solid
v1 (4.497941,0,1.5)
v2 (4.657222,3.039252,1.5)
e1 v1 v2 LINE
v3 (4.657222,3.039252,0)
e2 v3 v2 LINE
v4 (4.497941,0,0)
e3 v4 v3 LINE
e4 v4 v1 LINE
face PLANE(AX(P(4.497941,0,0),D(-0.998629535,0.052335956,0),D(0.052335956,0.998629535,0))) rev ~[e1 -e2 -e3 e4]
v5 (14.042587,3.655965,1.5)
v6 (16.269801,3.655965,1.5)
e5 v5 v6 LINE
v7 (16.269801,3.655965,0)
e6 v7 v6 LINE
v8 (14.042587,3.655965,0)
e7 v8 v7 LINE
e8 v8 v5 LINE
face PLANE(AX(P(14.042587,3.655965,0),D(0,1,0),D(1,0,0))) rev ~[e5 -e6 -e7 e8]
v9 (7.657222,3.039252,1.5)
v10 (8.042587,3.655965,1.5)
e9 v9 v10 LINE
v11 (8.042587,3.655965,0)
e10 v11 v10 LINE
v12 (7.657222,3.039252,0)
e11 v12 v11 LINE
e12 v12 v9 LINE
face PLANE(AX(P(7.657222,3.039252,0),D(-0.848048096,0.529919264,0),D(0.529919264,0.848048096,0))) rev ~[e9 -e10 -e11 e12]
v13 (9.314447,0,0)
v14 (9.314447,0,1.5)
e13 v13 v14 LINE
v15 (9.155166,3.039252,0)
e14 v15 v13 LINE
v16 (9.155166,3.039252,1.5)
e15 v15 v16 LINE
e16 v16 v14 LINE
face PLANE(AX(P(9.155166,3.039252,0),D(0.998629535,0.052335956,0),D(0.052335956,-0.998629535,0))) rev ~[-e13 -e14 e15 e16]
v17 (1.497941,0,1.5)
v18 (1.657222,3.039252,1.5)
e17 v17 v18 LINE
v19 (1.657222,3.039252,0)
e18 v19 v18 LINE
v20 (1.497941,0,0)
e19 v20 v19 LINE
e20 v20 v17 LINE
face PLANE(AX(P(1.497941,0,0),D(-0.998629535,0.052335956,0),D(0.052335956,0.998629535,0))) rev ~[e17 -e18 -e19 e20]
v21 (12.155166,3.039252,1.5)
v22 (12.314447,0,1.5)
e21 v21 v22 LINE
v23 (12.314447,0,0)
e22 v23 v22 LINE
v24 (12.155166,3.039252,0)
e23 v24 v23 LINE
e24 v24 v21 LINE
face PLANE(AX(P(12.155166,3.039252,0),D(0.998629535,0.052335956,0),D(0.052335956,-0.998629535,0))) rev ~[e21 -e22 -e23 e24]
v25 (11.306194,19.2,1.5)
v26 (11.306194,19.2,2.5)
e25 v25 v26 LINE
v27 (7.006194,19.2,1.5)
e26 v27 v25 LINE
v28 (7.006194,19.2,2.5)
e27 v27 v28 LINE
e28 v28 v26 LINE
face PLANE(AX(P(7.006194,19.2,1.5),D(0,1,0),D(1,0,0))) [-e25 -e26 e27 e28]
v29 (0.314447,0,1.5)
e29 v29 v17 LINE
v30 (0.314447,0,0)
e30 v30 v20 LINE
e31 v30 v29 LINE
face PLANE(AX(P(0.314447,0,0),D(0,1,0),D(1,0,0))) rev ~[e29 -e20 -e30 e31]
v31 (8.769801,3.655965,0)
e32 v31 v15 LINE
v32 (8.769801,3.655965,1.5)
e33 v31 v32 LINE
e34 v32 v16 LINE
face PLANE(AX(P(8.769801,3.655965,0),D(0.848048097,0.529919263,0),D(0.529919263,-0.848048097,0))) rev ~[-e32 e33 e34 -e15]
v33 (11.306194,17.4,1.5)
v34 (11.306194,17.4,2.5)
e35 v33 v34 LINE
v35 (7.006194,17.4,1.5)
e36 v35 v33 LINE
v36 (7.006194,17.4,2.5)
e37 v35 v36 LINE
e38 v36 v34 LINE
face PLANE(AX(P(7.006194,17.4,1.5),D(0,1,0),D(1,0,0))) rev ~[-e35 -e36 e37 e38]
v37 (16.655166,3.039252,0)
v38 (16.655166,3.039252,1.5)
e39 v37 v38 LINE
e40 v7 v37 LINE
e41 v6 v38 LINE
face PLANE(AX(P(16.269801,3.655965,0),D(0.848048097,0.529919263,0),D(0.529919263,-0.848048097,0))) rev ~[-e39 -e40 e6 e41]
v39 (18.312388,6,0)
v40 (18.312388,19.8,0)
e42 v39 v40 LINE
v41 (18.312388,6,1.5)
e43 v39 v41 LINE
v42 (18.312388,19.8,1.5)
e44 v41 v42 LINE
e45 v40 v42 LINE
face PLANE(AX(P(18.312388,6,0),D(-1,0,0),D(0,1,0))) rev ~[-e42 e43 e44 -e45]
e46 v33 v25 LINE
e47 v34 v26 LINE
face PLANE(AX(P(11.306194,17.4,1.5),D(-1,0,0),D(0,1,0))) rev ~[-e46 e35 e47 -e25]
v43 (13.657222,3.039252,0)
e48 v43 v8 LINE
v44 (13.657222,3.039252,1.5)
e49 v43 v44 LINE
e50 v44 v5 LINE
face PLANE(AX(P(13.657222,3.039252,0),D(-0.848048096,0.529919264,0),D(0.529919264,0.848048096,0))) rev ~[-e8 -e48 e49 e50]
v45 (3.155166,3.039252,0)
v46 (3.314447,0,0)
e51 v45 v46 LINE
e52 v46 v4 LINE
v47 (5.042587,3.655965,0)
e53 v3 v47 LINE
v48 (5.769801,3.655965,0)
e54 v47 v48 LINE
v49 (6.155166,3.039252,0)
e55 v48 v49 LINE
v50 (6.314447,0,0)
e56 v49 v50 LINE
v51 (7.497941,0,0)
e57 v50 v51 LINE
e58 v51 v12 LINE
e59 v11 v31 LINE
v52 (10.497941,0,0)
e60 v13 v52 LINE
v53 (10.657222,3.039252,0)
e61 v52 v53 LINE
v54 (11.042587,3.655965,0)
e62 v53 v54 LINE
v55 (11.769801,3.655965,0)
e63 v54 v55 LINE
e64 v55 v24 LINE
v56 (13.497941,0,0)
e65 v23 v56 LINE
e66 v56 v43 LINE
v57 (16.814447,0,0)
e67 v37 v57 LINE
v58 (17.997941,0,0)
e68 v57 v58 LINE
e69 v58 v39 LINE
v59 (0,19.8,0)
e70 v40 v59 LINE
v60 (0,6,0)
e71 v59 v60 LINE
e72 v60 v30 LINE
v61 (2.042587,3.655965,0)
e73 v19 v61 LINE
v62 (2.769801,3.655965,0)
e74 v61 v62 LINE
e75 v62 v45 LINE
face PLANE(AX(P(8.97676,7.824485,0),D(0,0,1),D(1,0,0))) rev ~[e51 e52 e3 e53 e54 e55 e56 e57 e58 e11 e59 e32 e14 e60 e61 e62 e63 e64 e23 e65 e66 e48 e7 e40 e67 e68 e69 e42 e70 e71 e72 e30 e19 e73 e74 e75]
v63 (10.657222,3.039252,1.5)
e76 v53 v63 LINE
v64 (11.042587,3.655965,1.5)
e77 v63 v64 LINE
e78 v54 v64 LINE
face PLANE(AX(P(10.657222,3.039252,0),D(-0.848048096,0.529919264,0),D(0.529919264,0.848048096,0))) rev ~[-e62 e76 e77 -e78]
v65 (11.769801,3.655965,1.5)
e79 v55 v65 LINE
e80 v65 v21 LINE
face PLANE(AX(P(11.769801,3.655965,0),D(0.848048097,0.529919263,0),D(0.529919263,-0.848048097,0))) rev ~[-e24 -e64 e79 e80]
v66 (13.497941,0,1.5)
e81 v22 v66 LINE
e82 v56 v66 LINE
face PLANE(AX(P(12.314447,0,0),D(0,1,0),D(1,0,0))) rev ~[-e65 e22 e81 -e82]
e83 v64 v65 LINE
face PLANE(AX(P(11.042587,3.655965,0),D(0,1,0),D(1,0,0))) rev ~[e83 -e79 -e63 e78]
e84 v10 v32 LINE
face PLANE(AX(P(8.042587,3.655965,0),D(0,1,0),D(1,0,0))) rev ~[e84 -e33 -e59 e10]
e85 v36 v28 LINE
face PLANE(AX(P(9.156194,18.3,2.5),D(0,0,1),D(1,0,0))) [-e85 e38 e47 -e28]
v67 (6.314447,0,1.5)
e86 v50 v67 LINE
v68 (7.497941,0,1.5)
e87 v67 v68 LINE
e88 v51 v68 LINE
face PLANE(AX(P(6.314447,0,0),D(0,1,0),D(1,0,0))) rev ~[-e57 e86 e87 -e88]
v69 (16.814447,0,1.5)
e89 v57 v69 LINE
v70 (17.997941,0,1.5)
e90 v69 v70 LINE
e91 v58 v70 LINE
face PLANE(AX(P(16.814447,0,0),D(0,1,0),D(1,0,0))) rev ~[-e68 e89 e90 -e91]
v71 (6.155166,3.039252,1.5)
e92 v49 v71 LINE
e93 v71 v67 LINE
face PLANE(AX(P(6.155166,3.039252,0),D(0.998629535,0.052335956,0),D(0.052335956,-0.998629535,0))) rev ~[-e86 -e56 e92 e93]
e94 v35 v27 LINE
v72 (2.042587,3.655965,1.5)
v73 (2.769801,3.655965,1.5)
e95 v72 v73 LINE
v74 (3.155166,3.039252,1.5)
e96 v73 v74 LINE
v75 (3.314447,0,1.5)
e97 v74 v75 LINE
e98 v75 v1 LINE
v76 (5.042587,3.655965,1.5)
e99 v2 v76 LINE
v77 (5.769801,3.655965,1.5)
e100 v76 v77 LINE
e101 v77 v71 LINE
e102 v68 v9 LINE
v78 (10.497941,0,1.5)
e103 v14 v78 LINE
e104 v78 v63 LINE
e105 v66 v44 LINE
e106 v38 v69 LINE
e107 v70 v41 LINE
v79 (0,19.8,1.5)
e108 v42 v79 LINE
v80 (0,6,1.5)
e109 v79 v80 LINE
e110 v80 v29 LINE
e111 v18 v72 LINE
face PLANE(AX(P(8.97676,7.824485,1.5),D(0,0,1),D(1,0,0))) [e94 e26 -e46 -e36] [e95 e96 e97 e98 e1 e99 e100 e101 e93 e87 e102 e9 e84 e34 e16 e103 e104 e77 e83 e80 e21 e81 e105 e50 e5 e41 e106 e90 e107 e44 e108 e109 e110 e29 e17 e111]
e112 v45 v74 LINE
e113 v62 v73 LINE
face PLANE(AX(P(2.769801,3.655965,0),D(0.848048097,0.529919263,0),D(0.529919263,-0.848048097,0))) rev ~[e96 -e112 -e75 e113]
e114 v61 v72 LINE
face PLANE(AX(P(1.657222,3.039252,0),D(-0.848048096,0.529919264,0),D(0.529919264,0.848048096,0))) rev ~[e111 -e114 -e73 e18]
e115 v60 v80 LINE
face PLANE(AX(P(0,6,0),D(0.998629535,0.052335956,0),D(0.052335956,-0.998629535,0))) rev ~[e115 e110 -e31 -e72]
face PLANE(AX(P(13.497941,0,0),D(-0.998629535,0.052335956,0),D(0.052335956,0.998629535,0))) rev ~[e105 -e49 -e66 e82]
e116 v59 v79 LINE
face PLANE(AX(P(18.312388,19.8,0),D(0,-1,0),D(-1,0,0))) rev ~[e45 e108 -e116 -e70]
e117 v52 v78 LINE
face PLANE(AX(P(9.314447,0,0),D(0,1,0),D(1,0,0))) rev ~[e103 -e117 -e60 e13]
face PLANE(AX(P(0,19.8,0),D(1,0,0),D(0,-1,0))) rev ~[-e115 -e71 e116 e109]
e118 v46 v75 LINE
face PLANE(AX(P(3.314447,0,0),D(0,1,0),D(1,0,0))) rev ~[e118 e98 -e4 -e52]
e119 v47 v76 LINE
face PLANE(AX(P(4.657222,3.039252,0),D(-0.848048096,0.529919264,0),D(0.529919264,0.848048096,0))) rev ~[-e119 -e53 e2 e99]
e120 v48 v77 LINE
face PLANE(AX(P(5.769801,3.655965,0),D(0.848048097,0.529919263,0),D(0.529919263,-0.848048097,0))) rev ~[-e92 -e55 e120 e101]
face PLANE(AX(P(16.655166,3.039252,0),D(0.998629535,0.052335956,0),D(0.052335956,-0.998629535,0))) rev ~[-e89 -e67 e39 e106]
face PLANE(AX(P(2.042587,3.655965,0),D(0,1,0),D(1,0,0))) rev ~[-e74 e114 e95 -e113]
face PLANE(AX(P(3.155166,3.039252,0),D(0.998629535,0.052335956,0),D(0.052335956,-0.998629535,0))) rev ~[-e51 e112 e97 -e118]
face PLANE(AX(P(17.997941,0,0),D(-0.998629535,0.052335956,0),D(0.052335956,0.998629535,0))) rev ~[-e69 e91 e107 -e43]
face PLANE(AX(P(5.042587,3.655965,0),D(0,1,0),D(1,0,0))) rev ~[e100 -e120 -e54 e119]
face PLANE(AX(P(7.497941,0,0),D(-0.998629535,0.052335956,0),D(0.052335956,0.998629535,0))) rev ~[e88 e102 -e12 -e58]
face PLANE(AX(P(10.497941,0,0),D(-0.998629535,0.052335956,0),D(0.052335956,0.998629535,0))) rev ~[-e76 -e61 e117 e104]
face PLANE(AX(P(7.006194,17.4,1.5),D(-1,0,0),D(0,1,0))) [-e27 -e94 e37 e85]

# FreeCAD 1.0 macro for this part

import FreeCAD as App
import Part
import Sketcher
from FreeCAD import Vector
Q = App.Units.Quantity

doc = App.newDocument("Part")
body = doc.addObject("PartDesign::Body", "Body")

# Sketch on XY plane
sketch1 = body.newObject("Sketcher::SketchObject", "Sketch")
sketch1.AttachmentSupport = (doc.getObject("XY_Plane"), [""])
sketch1.MapMode = "FlatFace"
sketch1.addGeometry([
    Part.LineSegment(Vector(0, 6, 0), Vector(0.3, 0, 0)),  # 0
    Part.LineSegment(Vector(0.3, 0, 0), Vector(1.5, 0, 0)),  # 1
    Part.LineSegment(Vector(1.5, 0, 0), Vector(1.7, 3, 0)),  # 2
    Part.LineSegment(Vector(1.7, 3, 0), Vector(2, 3.7, 0)),  # 3
    Part.LineSegment(Vector(2, 3.7, 0), Vector(2.8, 3.7, 0)),  # 4
    Part.LineSegment(Vector(2.8, 3.7, 0), Vector(3.2, 3, 0)),  # 5
    Part.LineSegment(Vector(3.2, 3, 0), Vector(3.3, 0, 0)),  # 6
    Part.LineSegment(Vector(3.3, 0, 0), Vector(4.5, 0, 0)),  # 7
    Part.LineSegment(Vector(4.5, 0, 0), Vector(4.7, 3, 0)),  # 8
    Part.LineSegment(Vector(4.7, 3, 0), Vector(5, 3.7, 0)),  # 9
    Part.LineSegment(Vector(5, 3.7, 0), Vector(5.8, 3.7, 0)),  # 10
    Part.LineSegment(Vector(5.8, 3.7, 0), Vector(6.2, 3, 0)),  # 11
    Part.LineSegment(Vector(6.2, 3, 0), Vector(6.3, 0, 0)),  # 12
    Part.LineSegment(Vector(6.3, 0, 0), Vector(7.5, 0, 0)),  # 13
    Part.LineSegment(Vector(7.5, 0, 0), Vector(7.7, 3, 0)),  # 14
    Part.LineSegment(Vector(7.7, 3, 0), Vector(8, 3.7, 0)),  # 15
    Part.LineSegment(Vector(8, 3.7, 0), Vector(8.8, 3.7, 0)),  # 16
    Part.LineSegment(Vector(8.8, 3.7, 0), Vector(9.2, 3, 0)),  # 17
    Part.LineSegment(Vector(9.2, 3, 0), Vector(9.3, 0, 0)),  # 18
    Part.LineSegment(Vector(9.3, 0, 0), Vector(10.5, 0, 0)),  # 19
    Part.LineSegment(Vector(10.5, 0, 0), Vector(10.7, 3, 0)),  # 20
    Part.LineSegment(Vector(10.7, 3, 0), Vector(11, 3.7, 0)),  # 21
    Part.LineSegment(Vector(11, 3.7, 0), Vector(11.8, 3.7, 0)),  # 22
    Part.LineSegment(Vector(11.8, 3.7, 0), Vector(12.2, 3, 0)),  # 23
    Part.LineSegment(Vector(12.2, 3, 0), Vector(12.3, 0, 0)),  # 24
    Part.LineSegment(Vector(12.3, 0, 0), Vector(13.5, 0, 0)),  # 25
    Part.LineSegment(Vector(13.5, 0, 0), Vector(13.7, 3, 0)),  # 26
    Part.LineSegment(Vector(13.7, 3, 0), Vector(14, 3.7, 0)),  # 27
    Part.LineSegment(Vector(14, 3.7, 0), Vector(16.3, 3.7, 0)),  # 28
    Part.LineSegment(Vector(16.3, 3.7, 0), Vector(16.7, 3, 0)),  # 29
    Part.LineSegment(Vector(16.7, 3, 0), Vector(16.8, 0, 0)),  # 30
    Part.LineSegment(Vector(16.8, 0, 0), Vector(18, 0, 0)),  # 31
    Part.LineSegment(Vector(18, 0, 0), Vector(18.3, 6, 0)),  # 32
    Part.LineSegment(Vector(18.3, 6, 0), Vector(18.3, 19.8, 0)),  # 33
    Part.LineSegment(Vector(18.3, 19.8, 0), Vector(0, 19.8, 0)),  # 34
    Part.LineSegment(Vector(0, 19.8, 0), Vector(0, 6, 0)),  # 35
], False)
sketch1.addConstraint([
    Sketcher.Constraint("Coincident", 0, 2, 1, 1),
    Sketcher.Constraint("Coincident", 1, 2, 2, 1),
    Sketcher.Constraint("Coincident", 2, 2, 3, 1),
    Sketcher.Constraint("Coincident", 3, 2, 4, 1),
    Sketcher.Constraint("Coincident", 4, 2, 5, 1),
    Sketcher.Constraint("Coincident", 5, 2, 6, 1),
    Sketcher.Constraint("Coincident", 6, 2, 7, 1),
    Sketcher.Constraint("Coincident", 7, 2, 8, 1),
    Sketcher.Constraint("Coincident", 8, 2, 9, 1),
    Sketcher.Constraint("Coincident", 9, 2, 10, 1),
    Sketcher.Constraint("Coincident", 10, 2, 11, 1),
    Sketcher.Constraint("Coincident", 11, 2, 12, 1),
    Sketcher.Constraint("Coincident", 12, 2, 13, 1),
    Sketcher.Constraint("Coincident", 13, 2, 14, 1),
    Sketcher.Constraint("Coincident", 14, 2, 15, 1),
    Sketcher.Constraint("Coincident", 15, 2, 16, 1),
    Sketcher.Constraint("Coincident", 16, 2, 17, 1),
    Sketcher.Constraint("Coincident", 17, 2, 18, 1),
    Sketcher.Constraint("Coincident", 18, 2, 19, 1),
    Sketcher.Constraint("Coincident", 19, 2, 20, 1),
    Sketcher.Constraint("Coincident", 20, 2, 21, 1),
    Sketcher.Constraint("Coincident", 21, 2, 22, 1),
    Sketcher.Constraint("Coincident", 22, 2, 23, 1),
    Sketcher.Constraint("Coincident", 23, 2, 24, 1),
    Sketcher.Constraint("Coincident", 24, 2, 25, 1),
    Sketcher.Constraint("Coincident", 25, 2, 26, 1),
    Sketcher.Constraint("Coincident", 26, 2, 27, 1),
    Sketcher.Constraint("Coincident", 27, 2, 28, 1),
    Sketcher.Constraint("Coincident", 28, 2, 29, 1),
    Sketcher.Constraint("Coincident", 29, 2, 30, 1),
    Sketcher.Constraint("Coincident", 30, 2, 31, 1),
    Sketcher.Constraint("Coincident", 31, 2, 32, 1),
    Sketcher.Constraint("Coincident", 32, 2, 33, 1),
    Sketcher.Constraint("Coincident", 33, 2, 34, 1),
    Sketcher.Constraint("Coincident", 34, 2, 35, 1),
    Sketcher.Constraint("Coincident", 35, 2, 0, 1),
    Sketcher.Constraint("Horizontal", 1),
    Sketcher.Constraint("Horizontal", 4),
    Sketcher.Constraint("Horizontal", 7),
    Sketcher.Constraint("Horizontal", 10),
    Sketcher.Constraint("Horizontal", 13),
    Sketcher.Constraint("Horizontal", 16),
    Sketcher.Constraint("Horizontal", 19),
    Sketcher.Constraint("Horizontal", 22),
    Sketcher.Constraint("Horizontal", 25),
    Sketcher.Constraint("Horizontal", 28),
    Sketcher.Constraint("Horizontal", 31),
    Sketcher.Constraint("Vertical", 33),
    Sketcher.Constraint("Horizontal", 34),
    Sketcher.Constraint("Vertical", 35),
    Sketcher.Constraint("PointOnObject", 0, 2, -1),
    Sketcher.Constraint("PointOnObject", 6, 2, -1),
    Sketcher.Constraint("PointOnObject", 12, 2, -1),
    Sketcher.Constraint("PointOnObject", 18, 2, -1),
    Sketcher.Constraint("PointOnObject", 24, 2, -1),
    Sketcher.Constraint("PointOnObject", 30, 2, -1),
    Sketcher.Constraint("PointOnObject", 34, 2, -2),
    Sketcher.Constraint("Parallel", 0, 6),
    Sketcher.Constraint("Parallel", 2, 8),
    Sketcher.Constraint("Parallel", 3, 9),
    Sketcher.Constraint("Parallel", 5, 11),
    Sketcher.Constraint("Parallel", 6, 12),
    Sketcher.Constraint("Parallel", 8, 14),
    Sketcher.Constraint("Parallel", 9, 15),
    Sketcher.Constraint("Parallel", 11, 17),
    Sketcher.Constraint("Parallel", 12, 18),
    Sketcher.Constraint("Parallel", 14, 20),
    Sketcher.Constraint("Parallel", 15, 21),
    Sketcher.Constraint("Parallel", 17, 23),
    Sketcher.Constraint("Parallel", 18, 24),
    Sketcher.Constraint("Parallel", 20, 26),
    Sketcher.Constraint("Parallel", 21, 27),
    Sketcher.Constraint("Parallel", 23, 29),
    Sketcher.Constraint("Parallel", 24, 30),
    Sketcher.Constraint("Parallel", 26, 32),
    Sketcher.Constraint("Horizontal", 2, 2, 5, 2),
    Sketcher.Constraint("Horizontal", 5, 2, 8, 2),
    Sketcher.Constraint("Horizontal", 4, 2, 9, 2),
    Sketcher.Constraint("Horizontal", 8, 2, 11, 2),
    Sketcher.Constraint("Horizontal", 11, 2, 14, 2),
    Sketcher.Constraint("Horizontal", 10, 2, 15, 2),
    Sketcher.Constraint("Horizontal", 14, 2, 17, 2),
    Sketcher.Constraint("Horizontal", 17, 2, 20, 2),
    Sketcher.Constraint("Horizontal", 16, 2, 21, 2),
    Sketcher.Constraint("Horizontal", 20, 2, 23, 2),
    Sketcher.Constraint("Horizontal", 23, 2, 26, 2),
    Sketcher.Constraint("Horizontal", 22, 2, 27, 2),
    Sketcher.Constraint("Horizontal", 26, 2, 29, 2),
    Sketcher.Constraint("Horizontal", 32, 2, 35, 2),
    Sketcher.Constraint("Equal", 1, 7),
    Sketcher.Constraint("Equal", 4, 10),
    Sketcher.Constraint("Equal", 7, 13),
    Sketcher.Constraint("Equal", 10, 16),
    Sketcher.Constraint("Equal", 13, 19),
    Sketcher.Constraint("Equal", 16, 22),
    Sketcher.Constraint("Equal", 19, 25),
    Sketcher.Constraint("Equal", 25, 31),
    Sketcher.Constraint("Equal", 3, 5),
    Sketcher.Constraint("Equal", 2, 6),
    Sketcher.Constraint("Angle", 0, Q("-87 deg")),
    Sketcher.Constraint("Angle", 3, Q("58 deg")),
    Sketcher.Constraint("DistanceY", 33, 1, 33, 2, Q("13.8 mm")),
    Sketcher.Constraint("DistanceY", -1, 1, 32, 2, Q("6 mm")),
    Sketcher.Constraint("DistanceX", 0, 2, 6, 2, Q("3 mm")),
    Sketcher.Constraint("DistanceX", 22, 2, 28, 2, Q("4.5 mm")),
    Sketcher.Constraint("DistanceX", 34, 2, 34, 1, Q("18.312388 mm")),
    Sketcher.Constraint("DistanceX", -1, 1, 4, 2, Q("2.769801 mm")),
    Sketcher.Constraint("DistanceX", -1, 1, 2, 2, Q("1.657222 mm")),
])
pad1 = body.newObject("PartDesign::Pad", "Pad")
pad1.Profile = sketch1
pad1.Length = 1.5

# Sketch on XY plane
sketch2 = body.newObject("Sketcher::SketchObject", "Sketch001")
sketch2.AttachmentSupport = (doc.getObject("XY_Plane"), [""])
sketch2.MapMode = "FlatFace"
sketch2.AttachmentOffset = App.Placement(Vector(0, 0, 1.5), App.Rotation())
sketch2.addGeometry([
    Part.LineSegment(Vector(7, 19.2, 0), Vector(7, 17.4, 0)),
    Part.LineSegment(Vector(7, 17.4, 0), Vector(11.3, 17.4, 0)),
    Part.LineSegment(Vector(11.3, 17.4, 0), Vector(11.3, 19.2, 0)),
    Part.LineSegment(Vector(11.3, 19.2, 0), Vector(7, 19.2, 0)),
], False)
sketch2.addConstraint([
    Sketcher.Constraint("Coincident", 0, 2, 1, 1),
    Sketcher.Constraint("Coincident", 1, 2, 2, 1),
    Sketcher.Constraint("Coincident", 2, 2, 3, 1),
    Sketcher.Constraint("Coincident", 3, 2, 0, 1),
    Sketcher.Constraint("Vertical", 0),
    Sketcher.Constraint("Horizontal", 1),
    Sketcher.Constraint("Vertical", 2),
    Sketcher.Constraint("Horizontal", 3),
    Sketcher.Constraint("DistanceX", 1, 1, 1, 2, Q("4.3 mm")),
    Sketcher.Constraint("DistanceY", 0, 2, 0, 1, Q("1.8 mm")),
    Sketcher.Constraint("DistanceY", -1, 1, 0, 2, Q("17.4 mm")),
    Sketcher.Constraint("DistanceX", -1, 1, 0, 2, Q("7.006194 mm")),
])
pad2 = body.newObject("PartDesign::Pad", "Pad001")
pad2.Profile = sketch2
pad2.Length = 1

doc.recompute()
